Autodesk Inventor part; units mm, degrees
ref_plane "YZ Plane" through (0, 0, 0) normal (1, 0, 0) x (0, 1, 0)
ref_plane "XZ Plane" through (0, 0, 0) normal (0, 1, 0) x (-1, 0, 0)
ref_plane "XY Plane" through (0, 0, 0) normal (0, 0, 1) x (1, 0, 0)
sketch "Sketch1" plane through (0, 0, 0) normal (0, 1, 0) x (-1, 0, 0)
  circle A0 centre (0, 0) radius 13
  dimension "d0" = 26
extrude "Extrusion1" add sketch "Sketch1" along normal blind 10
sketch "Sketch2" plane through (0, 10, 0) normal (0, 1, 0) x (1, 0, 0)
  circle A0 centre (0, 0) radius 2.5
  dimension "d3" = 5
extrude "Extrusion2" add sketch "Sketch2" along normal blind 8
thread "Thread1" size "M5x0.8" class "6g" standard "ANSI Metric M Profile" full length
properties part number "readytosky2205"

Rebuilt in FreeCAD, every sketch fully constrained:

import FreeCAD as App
import Part
import Sketcher
from FreeCAD import Vector

doc = App.newDocument("Part")
body = doc.addObject("PartDesign::Body", "Body")

# Sketch on XZ plane
sketch1 = body.newObject("Sketcher::SketchObject", "Sketch")
sketch1.AttachmentSupport = (doc.getObject("XZ_Plane"), [""])
sketch1.MapMode = "FlatFace"
sketch1.addGeometry(Part.Circle(Vector(0, 0, 0), Vector(0, 0, 1), 13), False)
sketch1.addConstraint([
    Sketcher.Constraint("Coincident", 0, 3, -1, 1),
    Sketcher.Constraint("Diameter", 0, 26.0),
])
pad1 = body.newObject("PartDesign::Pad", "Pad")
pad1.Profile = sketch1
pad1.Length = 10
pad1.Reversed = True

# Sketch on XZ plane
sketch2 = body.newObject("Sketcher::SketchObject", "Sketch001")
sketch2.AttachmentSupport = (doc.getObject("XZ_Plane"), [""])
sketch2.MapMode = "FlatFace"
sketch2.AttachmentOffset = App.Placement(Vector(0, 0, -10), App.Rotation())
sketch2.addGeometry(Part.Circle(Vector(0, 0, 0), Vector(0, 0, 1), 2.5), False)
sketch2.addConstraint([
    Sketcher.Constraint("Coincident", 0, 3, -1, 1),
    Sketcher.Constraint("Diameter", 0, 5.0),
])
pad2 = body.newObject("PartDesign::Pad", "Pad001")
pad2.Profile = sketch2
pad2.Length = 8
pad2.Reversed = True

doc.recompute()
